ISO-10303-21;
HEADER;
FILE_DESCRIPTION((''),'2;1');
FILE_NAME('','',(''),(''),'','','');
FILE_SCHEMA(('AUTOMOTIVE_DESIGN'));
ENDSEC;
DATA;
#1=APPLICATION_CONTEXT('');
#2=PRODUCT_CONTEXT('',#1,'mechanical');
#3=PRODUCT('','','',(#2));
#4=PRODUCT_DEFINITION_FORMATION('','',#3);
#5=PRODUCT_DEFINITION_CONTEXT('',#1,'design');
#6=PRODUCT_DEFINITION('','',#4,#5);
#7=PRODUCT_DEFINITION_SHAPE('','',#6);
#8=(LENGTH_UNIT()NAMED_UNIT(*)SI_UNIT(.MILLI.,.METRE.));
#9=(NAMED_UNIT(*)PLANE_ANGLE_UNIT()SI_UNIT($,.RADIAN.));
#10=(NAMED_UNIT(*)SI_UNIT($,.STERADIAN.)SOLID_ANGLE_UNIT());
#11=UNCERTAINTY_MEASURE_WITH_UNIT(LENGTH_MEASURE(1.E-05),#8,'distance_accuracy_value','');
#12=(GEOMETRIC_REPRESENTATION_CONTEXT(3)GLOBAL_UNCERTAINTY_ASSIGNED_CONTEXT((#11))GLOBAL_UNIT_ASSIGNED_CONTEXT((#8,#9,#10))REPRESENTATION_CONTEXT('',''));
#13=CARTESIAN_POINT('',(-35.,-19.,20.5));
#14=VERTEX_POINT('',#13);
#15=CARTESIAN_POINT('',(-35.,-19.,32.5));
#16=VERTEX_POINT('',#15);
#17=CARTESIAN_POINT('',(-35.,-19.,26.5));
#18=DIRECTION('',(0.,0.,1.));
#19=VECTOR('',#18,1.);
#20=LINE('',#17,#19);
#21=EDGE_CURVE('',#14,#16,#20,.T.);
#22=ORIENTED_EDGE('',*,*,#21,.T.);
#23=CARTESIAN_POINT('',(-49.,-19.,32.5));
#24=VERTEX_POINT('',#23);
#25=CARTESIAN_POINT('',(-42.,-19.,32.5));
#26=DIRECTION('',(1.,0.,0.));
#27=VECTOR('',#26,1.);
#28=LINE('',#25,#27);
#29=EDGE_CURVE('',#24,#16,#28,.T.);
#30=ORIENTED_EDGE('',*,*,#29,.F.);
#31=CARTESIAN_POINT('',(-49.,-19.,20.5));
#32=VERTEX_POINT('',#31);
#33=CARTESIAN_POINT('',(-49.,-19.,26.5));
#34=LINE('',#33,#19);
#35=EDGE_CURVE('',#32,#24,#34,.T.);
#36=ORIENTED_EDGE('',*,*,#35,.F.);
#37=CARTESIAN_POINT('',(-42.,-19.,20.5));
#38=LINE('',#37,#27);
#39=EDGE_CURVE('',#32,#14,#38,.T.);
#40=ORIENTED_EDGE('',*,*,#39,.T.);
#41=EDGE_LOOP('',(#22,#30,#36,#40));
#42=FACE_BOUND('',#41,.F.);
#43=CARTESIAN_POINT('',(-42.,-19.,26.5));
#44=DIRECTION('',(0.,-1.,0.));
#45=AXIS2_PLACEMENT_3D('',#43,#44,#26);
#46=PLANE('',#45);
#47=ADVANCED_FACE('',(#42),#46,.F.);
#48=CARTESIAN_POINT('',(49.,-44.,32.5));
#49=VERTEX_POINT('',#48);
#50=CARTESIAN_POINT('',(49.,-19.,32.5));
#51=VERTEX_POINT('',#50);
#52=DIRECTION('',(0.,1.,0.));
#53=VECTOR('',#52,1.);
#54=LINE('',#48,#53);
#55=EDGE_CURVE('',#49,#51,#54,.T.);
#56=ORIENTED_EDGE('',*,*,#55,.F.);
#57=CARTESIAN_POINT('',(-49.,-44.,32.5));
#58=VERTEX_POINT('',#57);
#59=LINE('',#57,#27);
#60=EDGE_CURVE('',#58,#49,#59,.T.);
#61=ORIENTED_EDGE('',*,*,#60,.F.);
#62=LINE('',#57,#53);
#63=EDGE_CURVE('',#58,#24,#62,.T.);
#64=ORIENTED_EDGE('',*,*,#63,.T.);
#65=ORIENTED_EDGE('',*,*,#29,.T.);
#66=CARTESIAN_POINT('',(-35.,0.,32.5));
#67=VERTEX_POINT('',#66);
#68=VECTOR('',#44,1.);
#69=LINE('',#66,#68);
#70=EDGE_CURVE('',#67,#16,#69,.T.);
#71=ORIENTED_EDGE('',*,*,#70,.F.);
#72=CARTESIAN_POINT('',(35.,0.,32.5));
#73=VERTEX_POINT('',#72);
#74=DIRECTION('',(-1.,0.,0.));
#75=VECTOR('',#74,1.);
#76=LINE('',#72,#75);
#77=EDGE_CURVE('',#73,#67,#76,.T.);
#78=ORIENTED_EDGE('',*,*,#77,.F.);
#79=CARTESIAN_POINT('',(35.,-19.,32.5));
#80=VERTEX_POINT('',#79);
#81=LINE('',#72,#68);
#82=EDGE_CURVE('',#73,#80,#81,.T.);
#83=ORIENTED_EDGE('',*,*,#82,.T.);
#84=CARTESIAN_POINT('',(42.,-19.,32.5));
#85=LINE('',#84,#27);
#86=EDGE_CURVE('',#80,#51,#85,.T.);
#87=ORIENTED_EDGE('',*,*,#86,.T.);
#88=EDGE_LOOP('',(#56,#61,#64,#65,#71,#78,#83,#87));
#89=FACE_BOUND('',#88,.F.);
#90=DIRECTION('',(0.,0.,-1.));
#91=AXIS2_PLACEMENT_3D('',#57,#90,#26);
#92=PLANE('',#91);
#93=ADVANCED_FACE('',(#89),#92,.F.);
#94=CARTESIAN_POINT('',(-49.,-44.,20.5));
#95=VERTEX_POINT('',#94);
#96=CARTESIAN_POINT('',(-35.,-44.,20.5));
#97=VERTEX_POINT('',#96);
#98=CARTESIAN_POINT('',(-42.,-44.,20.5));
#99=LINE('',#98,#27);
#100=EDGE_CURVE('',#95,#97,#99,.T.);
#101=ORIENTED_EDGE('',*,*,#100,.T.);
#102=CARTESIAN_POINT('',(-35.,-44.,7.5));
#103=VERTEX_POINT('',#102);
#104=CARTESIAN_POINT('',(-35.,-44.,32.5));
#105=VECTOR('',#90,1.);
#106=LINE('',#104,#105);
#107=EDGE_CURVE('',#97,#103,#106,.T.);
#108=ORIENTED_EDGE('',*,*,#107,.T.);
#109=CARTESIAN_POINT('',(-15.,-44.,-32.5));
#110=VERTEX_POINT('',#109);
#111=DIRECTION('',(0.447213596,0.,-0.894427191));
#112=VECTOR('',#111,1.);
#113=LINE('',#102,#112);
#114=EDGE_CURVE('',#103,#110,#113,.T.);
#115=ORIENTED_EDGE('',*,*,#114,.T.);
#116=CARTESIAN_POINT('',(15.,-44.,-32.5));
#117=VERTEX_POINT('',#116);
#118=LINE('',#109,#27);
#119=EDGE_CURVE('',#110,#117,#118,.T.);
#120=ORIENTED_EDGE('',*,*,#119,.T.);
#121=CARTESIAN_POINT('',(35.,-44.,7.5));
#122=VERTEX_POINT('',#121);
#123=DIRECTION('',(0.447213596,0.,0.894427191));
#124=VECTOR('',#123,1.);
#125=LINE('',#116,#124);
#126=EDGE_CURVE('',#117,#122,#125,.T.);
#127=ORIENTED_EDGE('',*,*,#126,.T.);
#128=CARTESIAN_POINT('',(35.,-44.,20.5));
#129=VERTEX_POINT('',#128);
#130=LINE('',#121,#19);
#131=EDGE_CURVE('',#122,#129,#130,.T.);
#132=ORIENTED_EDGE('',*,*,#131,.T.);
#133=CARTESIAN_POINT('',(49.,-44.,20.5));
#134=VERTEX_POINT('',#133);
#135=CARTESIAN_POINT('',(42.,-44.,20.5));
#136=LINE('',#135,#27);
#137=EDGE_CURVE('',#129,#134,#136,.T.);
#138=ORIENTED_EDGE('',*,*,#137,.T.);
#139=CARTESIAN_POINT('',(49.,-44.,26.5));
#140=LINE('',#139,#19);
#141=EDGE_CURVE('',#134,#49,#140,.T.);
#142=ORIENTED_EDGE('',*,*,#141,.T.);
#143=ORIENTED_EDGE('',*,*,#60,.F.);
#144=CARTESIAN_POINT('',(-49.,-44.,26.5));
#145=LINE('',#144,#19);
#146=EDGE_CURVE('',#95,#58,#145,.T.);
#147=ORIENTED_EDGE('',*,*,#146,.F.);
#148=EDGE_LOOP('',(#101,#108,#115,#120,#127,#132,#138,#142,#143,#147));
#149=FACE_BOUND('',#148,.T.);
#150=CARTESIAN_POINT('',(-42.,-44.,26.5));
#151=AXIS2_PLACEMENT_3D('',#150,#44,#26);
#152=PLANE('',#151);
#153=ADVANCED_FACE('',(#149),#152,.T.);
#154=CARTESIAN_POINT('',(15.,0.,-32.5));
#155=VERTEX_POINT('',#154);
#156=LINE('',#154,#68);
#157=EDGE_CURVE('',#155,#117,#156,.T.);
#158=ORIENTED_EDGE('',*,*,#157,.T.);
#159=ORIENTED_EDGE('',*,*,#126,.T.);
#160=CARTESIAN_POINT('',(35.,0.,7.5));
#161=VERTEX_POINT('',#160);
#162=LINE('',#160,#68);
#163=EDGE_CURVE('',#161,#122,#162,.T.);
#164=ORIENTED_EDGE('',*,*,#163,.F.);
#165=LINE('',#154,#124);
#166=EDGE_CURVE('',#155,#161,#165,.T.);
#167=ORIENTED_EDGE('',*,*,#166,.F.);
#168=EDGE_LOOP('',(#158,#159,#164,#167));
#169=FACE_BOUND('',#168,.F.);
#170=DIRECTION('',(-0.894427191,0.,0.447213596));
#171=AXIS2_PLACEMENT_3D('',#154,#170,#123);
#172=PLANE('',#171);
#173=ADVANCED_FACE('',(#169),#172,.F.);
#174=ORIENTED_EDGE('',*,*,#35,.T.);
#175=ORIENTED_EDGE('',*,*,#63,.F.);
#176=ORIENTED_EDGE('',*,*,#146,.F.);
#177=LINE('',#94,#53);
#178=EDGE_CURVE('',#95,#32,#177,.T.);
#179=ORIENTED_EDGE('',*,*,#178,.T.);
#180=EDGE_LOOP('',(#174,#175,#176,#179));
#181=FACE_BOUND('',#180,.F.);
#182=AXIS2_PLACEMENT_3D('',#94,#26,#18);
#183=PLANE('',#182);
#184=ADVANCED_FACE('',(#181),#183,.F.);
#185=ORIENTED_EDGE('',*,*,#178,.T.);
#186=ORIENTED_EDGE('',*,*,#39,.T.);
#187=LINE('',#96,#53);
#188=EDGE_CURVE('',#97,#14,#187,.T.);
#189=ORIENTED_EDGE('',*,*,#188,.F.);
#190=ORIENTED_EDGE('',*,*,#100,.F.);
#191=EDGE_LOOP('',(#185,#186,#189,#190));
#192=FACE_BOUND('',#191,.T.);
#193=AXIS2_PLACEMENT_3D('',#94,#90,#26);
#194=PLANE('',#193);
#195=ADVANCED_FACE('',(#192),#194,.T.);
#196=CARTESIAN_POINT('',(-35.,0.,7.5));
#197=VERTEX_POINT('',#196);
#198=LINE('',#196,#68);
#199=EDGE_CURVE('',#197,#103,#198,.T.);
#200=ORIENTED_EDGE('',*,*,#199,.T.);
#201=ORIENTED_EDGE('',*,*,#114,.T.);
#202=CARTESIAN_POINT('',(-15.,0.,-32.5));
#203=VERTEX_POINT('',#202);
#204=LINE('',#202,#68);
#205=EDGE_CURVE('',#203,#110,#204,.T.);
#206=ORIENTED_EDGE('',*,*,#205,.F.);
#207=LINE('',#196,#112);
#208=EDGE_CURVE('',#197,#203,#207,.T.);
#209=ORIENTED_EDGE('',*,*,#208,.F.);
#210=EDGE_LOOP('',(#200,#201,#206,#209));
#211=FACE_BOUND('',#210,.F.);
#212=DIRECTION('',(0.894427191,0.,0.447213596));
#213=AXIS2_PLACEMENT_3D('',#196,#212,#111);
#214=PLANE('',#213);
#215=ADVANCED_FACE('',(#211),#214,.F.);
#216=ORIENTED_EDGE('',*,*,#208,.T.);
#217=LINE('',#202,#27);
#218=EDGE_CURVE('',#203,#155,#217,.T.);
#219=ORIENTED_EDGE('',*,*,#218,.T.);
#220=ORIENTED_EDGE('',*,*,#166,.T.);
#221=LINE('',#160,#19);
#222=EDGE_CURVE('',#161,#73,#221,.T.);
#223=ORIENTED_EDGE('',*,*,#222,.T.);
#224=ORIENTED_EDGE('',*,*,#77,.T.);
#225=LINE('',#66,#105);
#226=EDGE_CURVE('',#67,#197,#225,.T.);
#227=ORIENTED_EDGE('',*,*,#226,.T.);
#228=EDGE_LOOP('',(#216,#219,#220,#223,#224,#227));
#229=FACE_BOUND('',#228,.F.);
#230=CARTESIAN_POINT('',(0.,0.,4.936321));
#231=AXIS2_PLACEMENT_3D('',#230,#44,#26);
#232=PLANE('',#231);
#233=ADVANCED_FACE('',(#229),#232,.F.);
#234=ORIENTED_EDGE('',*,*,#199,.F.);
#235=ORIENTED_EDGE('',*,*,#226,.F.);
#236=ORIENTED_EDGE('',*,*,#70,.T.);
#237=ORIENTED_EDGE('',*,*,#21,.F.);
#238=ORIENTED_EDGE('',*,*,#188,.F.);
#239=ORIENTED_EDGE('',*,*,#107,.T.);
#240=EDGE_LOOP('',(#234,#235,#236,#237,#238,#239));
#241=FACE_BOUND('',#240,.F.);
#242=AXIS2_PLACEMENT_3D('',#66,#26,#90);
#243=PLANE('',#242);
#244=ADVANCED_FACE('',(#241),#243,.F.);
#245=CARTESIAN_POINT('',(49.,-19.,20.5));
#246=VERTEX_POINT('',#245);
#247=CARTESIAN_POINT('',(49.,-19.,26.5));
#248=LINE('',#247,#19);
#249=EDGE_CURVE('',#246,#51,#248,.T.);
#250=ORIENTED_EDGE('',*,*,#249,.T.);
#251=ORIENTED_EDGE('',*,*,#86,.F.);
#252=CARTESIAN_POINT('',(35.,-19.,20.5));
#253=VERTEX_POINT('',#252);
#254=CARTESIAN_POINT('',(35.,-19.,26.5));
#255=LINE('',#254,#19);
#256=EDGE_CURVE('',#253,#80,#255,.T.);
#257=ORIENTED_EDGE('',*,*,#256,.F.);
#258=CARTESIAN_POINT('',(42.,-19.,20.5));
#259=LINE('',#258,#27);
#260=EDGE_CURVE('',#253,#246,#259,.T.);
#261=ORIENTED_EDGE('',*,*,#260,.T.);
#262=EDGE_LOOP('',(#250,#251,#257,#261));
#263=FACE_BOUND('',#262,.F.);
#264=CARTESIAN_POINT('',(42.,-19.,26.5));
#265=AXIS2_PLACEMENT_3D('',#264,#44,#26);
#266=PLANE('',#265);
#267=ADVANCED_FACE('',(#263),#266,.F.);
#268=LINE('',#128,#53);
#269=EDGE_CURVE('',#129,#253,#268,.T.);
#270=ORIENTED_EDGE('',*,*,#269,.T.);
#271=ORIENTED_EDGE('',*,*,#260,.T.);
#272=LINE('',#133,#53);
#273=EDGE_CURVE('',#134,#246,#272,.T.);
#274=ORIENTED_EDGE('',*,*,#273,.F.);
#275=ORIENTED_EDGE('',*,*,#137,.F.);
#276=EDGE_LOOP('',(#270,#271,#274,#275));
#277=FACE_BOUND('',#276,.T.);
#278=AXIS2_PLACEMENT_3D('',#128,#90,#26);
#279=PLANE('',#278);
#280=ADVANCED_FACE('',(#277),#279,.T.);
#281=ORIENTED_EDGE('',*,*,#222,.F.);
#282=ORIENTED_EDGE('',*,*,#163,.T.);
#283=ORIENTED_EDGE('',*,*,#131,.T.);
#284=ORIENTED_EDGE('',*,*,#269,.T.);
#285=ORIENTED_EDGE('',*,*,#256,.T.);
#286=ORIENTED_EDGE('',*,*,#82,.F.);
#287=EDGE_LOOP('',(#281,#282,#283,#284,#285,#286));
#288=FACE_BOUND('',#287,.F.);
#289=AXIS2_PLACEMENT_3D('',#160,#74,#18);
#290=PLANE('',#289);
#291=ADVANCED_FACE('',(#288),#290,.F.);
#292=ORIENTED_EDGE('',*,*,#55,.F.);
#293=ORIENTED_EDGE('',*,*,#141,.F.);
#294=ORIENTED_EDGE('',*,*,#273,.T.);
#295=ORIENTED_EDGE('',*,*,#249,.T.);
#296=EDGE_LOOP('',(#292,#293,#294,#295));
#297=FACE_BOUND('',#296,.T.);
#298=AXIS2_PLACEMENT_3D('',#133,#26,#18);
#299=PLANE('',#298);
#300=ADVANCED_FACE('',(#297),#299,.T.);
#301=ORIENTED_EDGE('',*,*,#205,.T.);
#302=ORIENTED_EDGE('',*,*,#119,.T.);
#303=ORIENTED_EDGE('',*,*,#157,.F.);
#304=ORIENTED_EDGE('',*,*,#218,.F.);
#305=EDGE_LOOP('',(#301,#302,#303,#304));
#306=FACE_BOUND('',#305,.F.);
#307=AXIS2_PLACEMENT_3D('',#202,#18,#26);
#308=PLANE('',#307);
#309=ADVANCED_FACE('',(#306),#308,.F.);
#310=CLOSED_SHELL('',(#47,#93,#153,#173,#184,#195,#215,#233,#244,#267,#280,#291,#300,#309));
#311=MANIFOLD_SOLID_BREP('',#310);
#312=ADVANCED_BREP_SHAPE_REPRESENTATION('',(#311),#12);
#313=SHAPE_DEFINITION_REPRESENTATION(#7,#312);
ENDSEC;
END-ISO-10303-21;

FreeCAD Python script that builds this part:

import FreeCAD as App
import Part
import Sketcher
from FreeCAD import Vector


def add_polygon(sketch, points):
    """Adds a closed chain of lines whose ends are joined by coincident constraints."""
    first, n = sketch.GeometryCount, len(points)
    for a, b in zip(points, points[1:] + points[:1]):
        sketch.addGeometry(Part.LineSegment(App.Vector(*a, 0), App.Vector(*b, 0)), False)
    for i in range(n):
        sketch.addConstraint(Sketcher.Constraint("Coincident", first + i, 2, first + (i + 1) % n, 1))

doc = App.newDocument("Part")
body = doc.addObject("PartDesign::Body", "Body")

sketch1 = doc.addObject("Sketcher::SketchObject", "Sketch")
body.addObject(sketch1)
sketch1.AttachmentSupport = (doc.XZ_Plane, [""])
sketch1.MapMode = "FlatFace"
add_polygon(sketch1, [(35, 32.5), (-35, 32.5), (-35, 7.5), (-15, -32.5), (15, -32.5), (35, 7.5)])
sketch1.addConstraint(Sketcher.Constraint("Horizontal", 0))
sketch1.addConstraint(Sketcher.Constraint("Vertical", 1))
sketch1.addConstraint(Sketcher.Constraint("Horizontal", 3))
sketch1.addConstraint(Sketcher.Constraint("Vertical", 5))
sketch1.addConstraint(Sketcher.Constraint("Symmetric", 1, 2, 4, 2, -2))
sketch1.addConstraint(Sketcher.Constraint("Equal", 2, 4))
sketch1.addConstraint(Sketcher.Constraint("DistanceX", 0, 2, 0, 1, 70.0))
sketch1.addConstraint(Sketcher.Constraint("DistanceX", 3, 1, 3, 2, 30.0))
sketch1.addConstraint(Sketcher.Constraint("DistanceY", 1, 2, 1, 1, 25.0))
sketch1.addConstraint(Sketcher.Constraint("DistanceY", 2, 2, 1, 2, 40.0))
sketch1.addConstraint(Sketcher.Constraint("DistanceY", -1, 1, 0, 2, 32.5))
pad1 = doc.addObject("PartDesign::Pad", "Pad")
body.addObject(pad1)
pad1.Profile = sketch1
pad1.Length = 44

sketch2 = doc.addObject("Sketcher::SketchObject", "Sketch001")
body.addObject(sketch2)
sketch2.AttachmentSupport = (doc.XZ_Plane, [""])
sketch2.MapMode = "FlatFace"
sketch2.AttachmentOffset = App.Placement(Vector(0, 0, 44), App.Rotation())
add_polygon(sketch2, [(-49, 32.5), (-49, 20.5), (-35, 20.5), (-35, 32.5)])
add_polygon(sketch2, [(35, 32.5), (35, 20.5), (49, 20.5), (49, 32.5)])
sketch2.addConstraint(Sketcher.Constraint("Vertical", 0))
sketch2.addConstraint(Sketcher.Constraint("Horizontal", 1))
sketch2.addConstraint(Sketcher.Constraint("Vertical", 2))
sketch2.addConstraint(Sketcher.Constraint("Horizontal", 3))
sketch2.addConstraint(Sketcher.Constraint("Vertical", 4))
sketch2.addConstraint(Sketcher.Constraint("Horizontal", 5))
sketch2.addConstraint(Sketcher.Constraint("Vertical", 6))
sketch2.addConstraint(Sketcher.Constraint("Horizontal", 7))
sketch2.addConstraint(Sketcher.Constraint("Symmetric", 1, 2, 4, 2, -2))
sketch2.addConstraint(Sketcher.Constraint("Symmetric", 3, 2, 6, 2, -2))
sketch2.addConstraint(Sketcher.Constraint("DistanceX", 1, 1, 1, 2, 14.0))
sketch2.addConstraint(Sketcher.Constraint("DistanceY", 0, 2, 0, 1, 12.0))
sketch2.addConstraint(Sketcher.Constraint("DistanceX", 0, 2, -1, 1, 49.0))
sketch2.addConstraint(Sketcher.Constraint("DistanceY", -1, 1, 0, 2, 20.5))
pad2 = doc.addObject("PartDesign::Pad", "Pad001")
body.addObject(pad2)
pad2.Profile = sketch2
pad2.Length = 25
pad2.Reversed = True

doc.recompute()
